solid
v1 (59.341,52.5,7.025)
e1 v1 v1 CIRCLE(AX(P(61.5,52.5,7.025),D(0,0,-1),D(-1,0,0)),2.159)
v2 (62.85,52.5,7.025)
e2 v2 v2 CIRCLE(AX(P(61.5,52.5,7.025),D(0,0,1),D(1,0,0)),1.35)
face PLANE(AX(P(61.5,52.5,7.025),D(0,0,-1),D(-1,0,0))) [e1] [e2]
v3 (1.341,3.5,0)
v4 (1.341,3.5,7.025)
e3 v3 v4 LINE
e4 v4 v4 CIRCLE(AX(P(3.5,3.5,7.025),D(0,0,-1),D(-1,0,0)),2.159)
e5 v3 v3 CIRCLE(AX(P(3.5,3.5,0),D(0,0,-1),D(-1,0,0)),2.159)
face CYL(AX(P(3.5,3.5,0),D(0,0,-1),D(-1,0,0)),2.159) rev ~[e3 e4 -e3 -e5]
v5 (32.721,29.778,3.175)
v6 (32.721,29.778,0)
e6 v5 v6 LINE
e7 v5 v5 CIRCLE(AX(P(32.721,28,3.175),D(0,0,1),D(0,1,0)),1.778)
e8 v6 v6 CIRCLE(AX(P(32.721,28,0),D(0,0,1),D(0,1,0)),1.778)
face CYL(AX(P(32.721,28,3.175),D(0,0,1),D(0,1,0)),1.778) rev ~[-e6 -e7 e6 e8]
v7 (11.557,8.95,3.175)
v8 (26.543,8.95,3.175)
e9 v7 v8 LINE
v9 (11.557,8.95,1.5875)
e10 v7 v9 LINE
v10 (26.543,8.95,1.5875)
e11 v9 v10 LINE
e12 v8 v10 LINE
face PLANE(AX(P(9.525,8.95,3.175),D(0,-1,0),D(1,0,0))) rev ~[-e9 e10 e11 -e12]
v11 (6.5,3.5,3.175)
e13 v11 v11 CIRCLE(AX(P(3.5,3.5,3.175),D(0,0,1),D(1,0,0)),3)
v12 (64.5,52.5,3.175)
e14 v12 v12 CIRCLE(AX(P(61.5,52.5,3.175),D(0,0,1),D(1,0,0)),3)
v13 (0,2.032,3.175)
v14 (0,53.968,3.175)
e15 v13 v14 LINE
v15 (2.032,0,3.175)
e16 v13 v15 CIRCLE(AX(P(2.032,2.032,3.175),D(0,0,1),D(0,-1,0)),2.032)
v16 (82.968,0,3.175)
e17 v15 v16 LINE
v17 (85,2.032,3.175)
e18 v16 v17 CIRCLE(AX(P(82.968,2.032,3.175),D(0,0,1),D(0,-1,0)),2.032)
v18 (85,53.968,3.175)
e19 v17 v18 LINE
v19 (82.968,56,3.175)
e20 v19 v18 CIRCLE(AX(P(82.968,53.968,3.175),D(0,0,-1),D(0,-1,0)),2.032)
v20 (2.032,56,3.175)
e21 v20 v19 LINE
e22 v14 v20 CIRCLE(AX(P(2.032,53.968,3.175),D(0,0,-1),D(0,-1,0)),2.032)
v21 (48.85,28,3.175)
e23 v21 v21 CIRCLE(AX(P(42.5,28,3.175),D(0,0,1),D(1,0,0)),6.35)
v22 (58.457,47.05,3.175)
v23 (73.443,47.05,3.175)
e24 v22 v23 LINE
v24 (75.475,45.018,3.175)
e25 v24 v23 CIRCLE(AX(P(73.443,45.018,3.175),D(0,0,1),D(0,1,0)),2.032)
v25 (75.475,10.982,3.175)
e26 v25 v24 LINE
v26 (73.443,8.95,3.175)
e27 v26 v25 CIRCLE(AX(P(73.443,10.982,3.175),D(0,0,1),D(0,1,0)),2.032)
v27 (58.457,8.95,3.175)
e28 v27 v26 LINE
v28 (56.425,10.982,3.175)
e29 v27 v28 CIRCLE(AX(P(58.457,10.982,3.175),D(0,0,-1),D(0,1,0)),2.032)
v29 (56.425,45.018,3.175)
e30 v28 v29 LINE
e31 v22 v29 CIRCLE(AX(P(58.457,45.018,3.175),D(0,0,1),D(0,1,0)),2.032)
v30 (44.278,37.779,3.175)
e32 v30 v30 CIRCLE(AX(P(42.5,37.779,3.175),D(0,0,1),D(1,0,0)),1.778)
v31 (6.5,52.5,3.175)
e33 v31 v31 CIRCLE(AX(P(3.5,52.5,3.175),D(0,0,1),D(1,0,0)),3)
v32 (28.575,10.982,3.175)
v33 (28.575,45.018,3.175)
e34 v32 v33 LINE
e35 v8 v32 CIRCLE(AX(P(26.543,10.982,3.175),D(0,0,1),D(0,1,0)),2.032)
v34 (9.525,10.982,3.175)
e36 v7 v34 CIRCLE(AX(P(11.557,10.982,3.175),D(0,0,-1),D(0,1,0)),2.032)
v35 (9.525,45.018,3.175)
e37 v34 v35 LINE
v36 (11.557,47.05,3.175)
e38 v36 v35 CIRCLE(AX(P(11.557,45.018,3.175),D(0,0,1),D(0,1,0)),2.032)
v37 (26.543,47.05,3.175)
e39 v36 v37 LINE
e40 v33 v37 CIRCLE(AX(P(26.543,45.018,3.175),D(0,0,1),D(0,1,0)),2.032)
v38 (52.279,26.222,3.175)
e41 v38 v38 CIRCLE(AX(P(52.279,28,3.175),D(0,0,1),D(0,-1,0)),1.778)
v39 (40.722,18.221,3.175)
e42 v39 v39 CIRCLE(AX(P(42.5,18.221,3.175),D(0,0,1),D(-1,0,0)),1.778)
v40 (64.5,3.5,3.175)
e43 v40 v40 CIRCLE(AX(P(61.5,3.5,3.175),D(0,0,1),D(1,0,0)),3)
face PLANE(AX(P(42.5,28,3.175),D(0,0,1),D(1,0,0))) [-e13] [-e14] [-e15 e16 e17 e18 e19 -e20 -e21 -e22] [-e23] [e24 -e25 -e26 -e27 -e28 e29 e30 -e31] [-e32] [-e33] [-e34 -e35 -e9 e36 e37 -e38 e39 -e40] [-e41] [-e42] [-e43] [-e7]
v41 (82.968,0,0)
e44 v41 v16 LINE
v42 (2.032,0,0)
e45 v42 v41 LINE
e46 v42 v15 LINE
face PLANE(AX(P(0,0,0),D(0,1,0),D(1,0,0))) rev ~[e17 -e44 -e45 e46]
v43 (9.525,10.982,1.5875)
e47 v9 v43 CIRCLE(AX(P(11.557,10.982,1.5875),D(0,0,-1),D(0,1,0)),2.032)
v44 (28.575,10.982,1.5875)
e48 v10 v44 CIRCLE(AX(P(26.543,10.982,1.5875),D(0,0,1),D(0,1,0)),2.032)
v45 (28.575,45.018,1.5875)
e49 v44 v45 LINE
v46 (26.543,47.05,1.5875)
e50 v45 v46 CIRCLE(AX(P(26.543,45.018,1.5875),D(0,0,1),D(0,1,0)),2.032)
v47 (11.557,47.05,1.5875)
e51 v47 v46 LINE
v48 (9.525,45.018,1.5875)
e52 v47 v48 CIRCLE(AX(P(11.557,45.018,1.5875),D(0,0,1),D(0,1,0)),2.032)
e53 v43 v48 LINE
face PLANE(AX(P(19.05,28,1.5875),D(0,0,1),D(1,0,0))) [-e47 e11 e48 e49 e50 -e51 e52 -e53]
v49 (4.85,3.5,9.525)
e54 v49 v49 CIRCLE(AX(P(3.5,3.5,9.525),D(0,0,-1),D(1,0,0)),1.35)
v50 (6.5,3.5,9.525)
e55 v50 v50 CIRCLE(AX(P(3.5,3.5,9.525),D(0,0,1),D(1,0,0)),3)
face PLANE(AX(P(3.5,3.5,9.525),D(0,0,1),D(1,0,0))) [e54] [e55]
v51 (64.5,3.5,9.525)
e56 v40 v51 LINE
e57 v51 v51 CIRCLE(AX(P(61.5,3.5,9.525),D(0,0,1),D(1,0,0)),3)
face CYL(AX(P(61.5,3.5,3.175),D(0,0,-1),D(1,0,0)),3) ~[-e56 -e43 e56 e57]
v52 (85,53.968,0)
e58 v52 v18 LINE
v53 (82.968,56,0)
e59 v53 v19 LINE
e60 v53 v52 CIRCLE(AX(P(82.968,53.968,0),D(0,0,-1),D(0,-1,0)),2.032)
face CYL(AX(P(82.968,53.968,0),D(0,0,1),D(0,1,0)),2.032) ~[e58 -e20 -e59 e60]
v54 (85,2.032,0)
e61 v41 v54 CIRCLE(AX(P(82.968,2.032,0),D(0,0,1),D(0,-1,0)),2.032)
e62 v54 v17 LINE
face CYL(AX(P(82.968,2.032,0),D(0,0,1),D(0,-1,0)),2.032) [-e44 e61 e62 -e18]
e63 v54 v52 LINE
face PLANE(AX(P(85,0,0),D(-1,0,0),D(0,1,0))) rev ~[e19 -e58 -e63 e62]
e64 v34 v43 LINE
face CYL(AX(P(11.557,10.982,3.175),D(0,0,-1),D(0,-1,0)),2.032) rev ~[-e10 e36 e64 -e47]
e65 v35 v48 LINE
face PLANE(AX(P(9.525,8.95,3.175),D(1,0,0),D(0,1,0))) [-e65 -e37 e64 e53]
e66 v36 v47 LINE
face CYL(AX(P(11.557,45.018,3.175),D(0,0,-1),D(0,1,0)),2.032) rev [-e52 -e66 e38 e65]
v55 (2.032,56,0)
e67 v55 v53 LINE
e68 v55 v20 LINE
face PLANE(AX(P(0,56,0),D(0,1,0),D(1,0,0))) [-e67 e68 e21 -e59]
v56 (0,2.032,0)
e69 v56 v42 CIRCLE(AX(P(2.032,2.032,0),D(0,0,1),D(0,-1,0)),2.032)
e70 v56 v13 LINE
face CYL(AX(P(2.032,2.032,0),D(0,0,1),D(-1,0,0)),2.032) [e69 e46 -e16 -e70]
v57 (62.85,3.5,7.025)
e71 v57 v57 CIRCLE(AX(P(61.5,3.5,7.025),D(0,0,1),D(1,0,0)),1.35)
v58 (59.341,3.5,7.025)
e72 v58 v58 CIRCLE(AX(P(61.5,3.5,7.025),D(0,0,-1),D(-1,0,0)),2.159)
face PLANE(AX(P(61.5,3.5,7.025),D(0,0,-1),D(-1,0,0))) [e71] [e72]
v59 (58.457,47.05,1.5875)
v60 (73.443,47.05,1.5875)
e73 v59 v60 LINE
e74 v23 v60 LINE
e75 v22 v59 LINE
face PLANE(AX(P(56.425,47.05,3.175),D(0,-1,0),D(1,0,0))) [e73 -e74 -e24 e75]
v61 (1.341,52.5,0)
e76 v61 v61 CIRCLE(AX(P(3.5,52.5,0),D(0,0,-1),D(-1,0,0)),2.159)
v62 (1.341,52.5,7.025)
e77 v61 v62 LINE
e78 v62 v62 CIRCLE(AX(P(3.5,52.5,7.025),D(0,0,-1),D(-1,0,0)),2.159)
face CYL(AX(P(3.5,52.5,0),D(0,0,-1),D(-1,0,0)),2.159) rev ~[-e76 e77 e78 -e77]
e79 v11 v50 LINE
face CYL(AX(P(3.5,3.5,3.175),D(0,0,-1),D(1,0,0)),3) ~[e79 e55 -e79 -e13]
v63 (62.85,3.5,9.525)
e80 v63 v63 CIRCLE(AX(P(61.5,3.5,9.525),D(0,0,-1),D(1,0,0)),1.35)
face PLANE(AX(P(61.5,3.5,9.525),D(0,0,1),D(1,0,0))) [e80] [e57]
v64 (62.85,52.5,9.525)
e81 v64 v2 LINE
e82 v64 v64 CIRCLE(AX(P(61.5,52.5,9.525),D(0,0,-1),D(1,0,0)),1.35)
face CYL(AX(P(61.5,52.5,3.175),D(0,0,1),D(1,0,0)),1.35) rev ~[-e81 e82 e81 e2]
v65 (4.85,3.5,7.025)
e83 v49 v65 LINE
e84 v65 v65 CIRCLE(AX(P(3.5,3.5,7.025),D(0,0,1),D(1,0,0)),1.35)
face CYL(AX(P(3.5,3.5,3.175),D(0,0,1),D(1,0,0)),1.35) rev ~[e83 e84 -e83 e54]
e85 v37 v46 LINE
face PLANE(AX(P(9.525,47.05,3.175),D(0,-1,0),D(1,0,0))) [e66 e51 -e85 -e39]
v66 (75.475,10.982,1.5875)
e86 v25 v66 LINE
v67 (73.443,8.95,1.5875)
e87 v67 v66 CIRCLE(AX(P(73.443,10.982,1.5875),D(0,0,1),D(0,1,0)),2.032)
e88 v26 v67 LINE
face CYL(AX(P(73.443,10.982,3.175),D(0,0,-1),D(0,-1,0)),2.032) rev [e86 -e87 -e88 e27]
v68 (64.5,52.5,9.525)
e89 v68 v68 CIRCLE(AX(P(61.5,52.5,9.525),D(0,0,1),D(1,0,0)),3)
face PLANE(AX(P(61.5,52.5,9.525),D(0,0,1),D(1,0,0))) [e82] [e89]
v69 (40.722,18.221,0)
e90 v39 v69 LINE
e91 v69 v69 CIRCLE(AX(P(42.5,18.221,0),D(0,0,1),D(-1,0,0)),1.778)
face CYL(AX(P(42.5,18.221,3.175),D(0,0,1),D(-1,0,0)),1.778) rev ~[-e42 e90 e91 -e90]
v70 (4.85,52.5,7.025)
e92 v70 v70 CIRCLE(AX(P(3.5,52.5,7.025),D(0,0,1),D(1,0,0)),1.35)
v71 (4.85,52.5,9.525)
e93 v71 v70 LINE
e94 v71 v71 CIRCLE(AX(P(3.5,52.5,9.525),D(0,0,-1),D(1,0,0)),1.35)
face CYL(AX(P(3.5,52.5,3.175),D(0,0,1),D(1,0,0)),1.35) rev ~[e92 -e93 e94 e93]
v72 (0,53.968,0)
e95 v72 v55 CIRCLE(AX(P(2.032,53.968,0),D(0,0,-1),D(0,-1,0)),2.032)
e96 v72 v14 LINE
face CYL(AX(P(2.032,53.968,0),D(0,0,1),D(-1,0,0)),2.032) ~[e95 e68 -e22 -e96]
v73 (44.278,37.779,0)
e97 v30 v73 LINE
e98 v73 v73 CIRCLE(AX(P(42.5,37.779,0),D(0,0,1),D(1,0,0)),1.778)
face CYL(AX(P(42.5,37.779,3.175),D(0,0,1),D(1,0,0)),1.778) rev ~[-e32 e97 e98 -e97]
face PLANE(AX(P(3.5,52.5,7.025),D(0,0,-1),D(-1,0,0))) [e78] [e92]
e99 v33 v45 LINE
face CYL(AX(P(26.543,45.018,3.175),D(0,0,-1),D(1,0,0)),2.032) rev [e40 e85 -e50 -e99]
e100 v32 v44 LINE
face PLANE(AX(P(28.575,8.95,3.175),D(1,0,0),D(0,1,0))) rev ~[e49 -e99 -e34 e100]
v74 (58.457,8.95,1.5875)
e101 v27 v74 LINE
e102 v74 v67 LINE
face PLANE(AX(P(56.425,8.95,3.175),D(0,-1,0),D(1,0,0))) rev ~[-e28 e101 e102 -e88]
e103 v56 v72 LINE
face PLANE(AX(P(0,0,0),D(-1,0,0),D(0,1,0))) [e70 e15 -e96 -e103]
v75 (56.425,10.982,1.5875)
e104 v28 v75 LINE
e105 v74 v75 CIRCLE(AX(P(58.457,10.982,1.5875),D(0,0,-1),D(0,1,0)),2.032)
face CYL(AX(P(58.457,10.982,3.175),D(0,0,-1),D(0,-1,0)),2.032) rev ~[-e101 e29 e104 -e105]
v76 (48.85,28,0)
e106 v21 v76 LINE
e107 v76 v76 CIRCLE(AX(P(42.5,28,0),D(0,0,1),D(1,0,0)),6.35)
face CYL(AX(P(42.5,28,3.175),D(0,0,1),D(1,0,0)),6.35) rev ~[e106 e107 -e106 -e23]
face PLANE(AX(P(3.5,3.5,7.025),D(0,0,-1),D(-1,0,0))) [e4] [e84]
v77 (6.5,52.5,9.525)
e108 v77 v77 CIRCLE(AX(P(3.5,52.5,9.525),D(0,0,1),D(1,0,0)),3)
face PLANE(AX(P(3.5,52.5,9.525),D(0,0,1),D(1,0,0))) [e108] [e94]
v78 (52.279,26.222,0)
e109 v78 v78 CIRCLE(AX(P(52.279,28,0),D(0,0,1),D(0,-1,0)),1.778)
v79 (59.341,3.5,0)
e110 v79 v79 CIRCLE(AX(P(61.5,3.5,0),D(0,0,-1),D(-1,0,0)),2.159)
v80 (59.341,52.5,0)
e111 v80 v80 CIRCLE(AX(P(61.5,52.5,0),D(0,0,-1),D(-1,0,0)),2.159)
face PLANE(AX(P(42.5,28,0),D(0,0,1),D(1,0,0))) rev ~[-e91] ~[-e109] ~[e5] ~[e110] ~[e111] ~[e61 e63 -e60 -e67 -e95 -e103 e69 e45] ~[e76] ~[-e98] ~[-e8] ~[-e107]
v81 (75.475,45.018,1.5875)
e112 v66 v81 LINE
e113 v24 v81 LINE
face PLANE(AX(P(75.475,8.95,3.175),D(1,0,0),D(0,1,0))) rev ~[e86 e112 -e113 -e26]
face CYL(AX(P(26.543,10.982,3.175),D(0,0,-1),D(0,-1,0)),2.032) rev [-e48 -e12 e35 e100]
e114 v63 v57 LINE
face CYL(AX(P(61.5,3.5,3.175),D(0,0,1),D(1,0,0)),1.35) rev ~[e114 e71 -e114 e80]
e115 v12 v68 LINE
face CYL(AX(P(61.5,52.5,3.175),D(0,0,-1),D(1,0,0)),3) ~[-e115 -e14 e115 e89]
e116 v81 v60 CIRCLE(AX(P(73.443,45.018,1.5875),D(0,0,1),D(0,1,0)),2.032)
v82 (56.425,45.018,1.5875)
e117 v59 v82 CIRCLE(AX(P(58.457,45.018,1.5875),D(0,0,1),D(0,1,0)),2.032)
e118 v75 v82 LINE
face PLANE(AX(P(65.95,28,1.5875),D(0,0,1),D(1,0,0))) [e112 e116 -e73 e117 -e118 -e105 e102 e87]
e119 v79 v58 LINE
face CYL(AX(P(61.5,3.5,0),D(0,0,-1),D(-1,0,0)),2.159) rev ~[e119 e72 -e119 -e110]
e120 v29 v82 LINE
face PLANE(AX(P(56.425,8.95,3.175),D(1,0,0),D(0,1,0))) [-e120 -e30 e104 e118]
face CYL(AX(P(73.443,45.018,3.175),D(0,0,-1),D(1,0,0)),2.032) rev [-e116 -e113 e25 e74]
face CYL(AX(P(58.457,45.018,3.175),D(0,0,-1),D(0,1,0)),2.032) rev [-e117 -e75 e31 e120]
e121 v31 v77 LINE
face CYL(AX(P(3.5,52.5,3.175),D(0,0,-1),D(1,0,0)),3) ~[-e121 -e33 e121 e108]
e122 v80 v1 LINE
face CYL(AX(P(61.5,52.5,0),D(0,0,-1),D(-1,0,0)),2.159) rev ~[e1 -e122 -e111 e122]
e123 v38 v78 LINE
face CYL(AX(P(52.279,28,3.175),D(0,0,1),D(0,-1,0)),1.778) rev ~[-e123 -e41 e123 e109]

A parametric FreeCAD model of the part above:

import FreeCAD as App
import Part
import Sketcher

V = App.Vector
Q = App.Units.Quantity


def edges_at(feature, points):
    """Names of the edges that pass closest to the given points."""
    edges = feature.Shape.Edges
    near = lambda p: min(range(len(edges)), key=lambda i: edges[i].distToShape(Part.Vertex(*p))[0])
    return sorted({f"Edge{near(p) + 1}" for p in points})


def add_polygon(sketch, points):
    """Adds a closed chain of lines whose ends are joined by coincident constraints."""
    first, n = sketch.GeometryCount, len(points)
    for a, b in zip(points, points[1:] + points[:1]):
        sketch.addGeometry(Part.LineSegment(App.Vector(*a, 0), App.Vector(*b, 0)), False)
    for i in range(n):
        sketch.addConstraint(Sketcher.Constraint("Coincident", first + i, 2, first + (i + 1) % n, 1))

doc = App.newDocument("Part")
body = doc.addObject("PartDesign::Body", "Body")

sketch1 = doc.addObject("Sketcher::SketchObject", "Sketch")
body.addObject(sketch1)
sketch1.AttachmentSupport = (doc.XY_Plane, [""])
sketch1.MapMode = "FlatFace"
add_polygon(sketch1, [(0, 56), (0, 0), (85, 0), (85, 56)])
sketch1.addConstraint(Sketcher.Constraint("Vertical", 0))
sketch1.addConstraint(Sketcher.Constraint("Horizontal", 1))
sketch1.addConstraint(Sketcher.Constraint("Vertical", 2))
sketch1.addConstraint(Sketcher.Constraint("Horizontal", 3))
sketch1.addConstraint(Sketcher.Constraint("Coincident", 0, 2, -1, 1))
sketch1.addConstraint(Sketcher.Constraint("DistanceX", 1, 1, 1, 2, 85.0))
sketch1.addConstraint(Sketcher.Constraint("DistanceY", 0, 2, 0, 1, 56.0))
pad1 = doc.addObject("PartDesign::Pad", "Pad")
body.addObject(pad1)
pad1.Profile = sketch1
pad1.Length = Q("0.125 in")

sketch2 = doc.addObject("Sketcher::SketchObject", "Sketch001")
body.addObject(sketch2)
sketch2.AttachmentSupport = (doc.XY_Plane, [""])
sketch2.MapMode = "FlatFace"
sketch2.AttachmentOffset = App.Placement(V(0, 0, 0.125 * 25.4), App.Rotation())
sketch2.addGeometry(Part.Circle(V(42, 28, 0), V(0, 0, 1), 6), False)
sketch2.addConstraint(Sketcher.Constraint("Diameter", 0, Q("0.5 in")))
sketch2.addConstraint(Sketcher.Constraint("DistanceX", -1, 1, 0, 3, 42.5))
sketch2.addConstraint(Sketcher.Constraint("DistanceY", -1, 1, 0, 3, 28.0))
pocket1 = doc.addObject("PartDesign::Pocket", "Pocket")
body.addObject(pocket1)
pocket1.Profile = sketch2
pocket1.Length = Q("0.125 in")

sketch3 = doc.addObject("Sketcher::SketchObject", "Sketch002")
body.addObject(sketch3)
sketch3.AttachmentSupport = (doc.XY_Plane, [""])
sketch3.MapMode = "FlatFace"
sketch3.AttachmentOffset = App.Placement(V(0, 0, 0.125 * 25.4), App.Rotation())
sketch3.addGeometry(Part.Circle(V(42.5, 37.8, 0), V(0, 0, 1), 1.8), False)
sketch3.addConstraint(Sketcher.Constraint("Diameter", 0, Q("0.14 in")))
sketch3.addConstraint(Sketcher.Constraint("DistanceX", -1, 1, 0, 3, 42.5))
sketch3.addConstraint(Sketcher.Constraint("DistanceY", -1, 1, 0, 3, 37.779))
pocket2 = doc.addObject("PartDesign::Pocket", "Pocket001")
body.addObject(pocket2)
pocket2.Profile = sketch3
pocket2.Length = Q("0.125 in")
doc.recompute()

datumline = doc.addObject("PartDesign::Line", "DatumLine")
body.addObject(datumline)
datumline.Placement = App.Placement(V(42.5, 28, 0), App.Rotation(V(0, 0, 1), V(0, 0, 1)))
polarpattern = doc.addObject("PartDesign::PolarPattern", "PolarPattern")
body.addObject(polarpattern)
polarpattern.Originals = [pocket2]
polarpattern.Axis = (datumline, [""])
polarpattern.Angle = 360
polarpattern.Occurrences = 4
body.Tip = polarpattern

sketch4 = doc.addObject("Sketcher::SketchObject", "Sketch003")
body.addObject(sketch4)
sketch4.AttachmentSupport = (doc.XY_Plane, [""])
sketch4.MapMode = "FlatFace"
sketch4.AttachmentOffset = App.Placement(V(0, 0, 0.125 * 25.4), App.Rotation())
sketch4.addGeometry(Part.Circle(V(3.5, 52.5, 0), V(0, 0, 1), 3), False)
sketch4.addGeometry(Part.Circle(V(3.5, 3.5, 0), V(0, 0, 1), 3), False)
sketch4.addGeometry(Part.Circle(V(61.5, 52.5, 0), V(0, 0, 1), 3), False)
sketch4.addGeometry(Part.Circle(V(61.5, 3.5, 0), V(0, 0, 1), 3), False)
sketch4.addConstraint(Sketcher.Constraint("Equal", 0, 1))
sketch4.addConstraint(Sketcher.Constraint("Equal", 1, 2))
sketch4.addConstraint(Sketcher.Constraint("Equal", 2, 3))
sketch4.addConstraint(Sketcher.Constraint("Horizontal", 0, 3, 2, 3))
sketch4.addConstraint(Sketcher.Constraint("Horizontal", 1, 3, 3, 3))
sketch4.addConstraint(Sketcher.Constraint("Vertical", 0, 3, 1, 3))
sketch4.addConstraint(Sketcher.Constraint("Vertical", 2, 3, 3, 3))
sketch4.addConstraint(Sketcher.Constraint("Diameter", 0, 6.0))
sketch4.addConstraint(Sketcher.Constraint("DistanceX", -1, 1, 0, 3, 3.5))
sketch4.addConstraint(Sketcher.Constraint("DistanceY", -1, 1, 0, 3, 52.5))
sketch4.addConstraint(Sketcher.Constraint("DistanceY", -1, 1, 1, 3, 3.5))
sketch4.addConstraint(Sketcher.Constraint("DistanceX", -1, 1, 2, 3, 61.5))
pad2 = doc.addObject("PartDesign::Pad", "Pad001")
body.addObject(pad2)
pad2.Profile = sketch4
pad2.Length = Q("0.25 in")

sketch5 = doc.addObject("Sketcher::SketchObject", "Sketch004")
body.addObject(sketch5)
sketch5.AttachmentSupport = (doc.XY_Plane, [""])
sketch5.MapMode = "FlatFace"
sketch5.AttachmentOffset = App.Placement(V(0, 0, 0.125 * 25.4), App.Rotation())
sketch5.addGeometry(Part.Circle(V(3.5, 3.5, 0), V(0, 0, 1), 1.3), False)
sketch5.addGeometry(Part.Circle(V(61.5, 3.5, 0), V(0, 0, 1), 1.3), False)
sketch5.addGeometry(Part.Circle(V(61.5, 52.5, 0), V(0, 0, 1), 1.3), False)
sketch5.addGeometry(Part.Circle(V(3.5, 52.5, 0), V(0, 0, 1), 1.3), False)
sketch5.addConstraint(Sketcher.Constraint("Equal", 0, 1))
sketch5.addConstraint(Sketcher.Constraint("Equal", 1, 2))
sketch5.addConstraint(Sketcher.Constraint("Equal", 2, 3))
sketch5.addConstraint(Sketcher.Constraint("Horizontal", 0, 3, 1, 3))
sketch5.addConstraint(Sketcher.Constraint("Horizontal", 2, 3, 3, 3))
sketch5.addConstraint(Sketcher.Constraint("Vertical", 1, 3, 2, 3))
sketch5.addConstraint(Sketcher.Constraint("Vertical", 0, 3, 3, 3))
sketch5.addConstraint(Sketcher.Constraint("Diameter", 0, 2.7))
sketch5.addConstraint(Sketcher.Constraint("DistanceX", -1, 1, 0, 3, 3.5))
sketch5.addConstraint(Sketcher.Constraint("DistanceY", -1, 1, 0, 3, 3.5))
sketch5.addConstraint(Sketcher.Constraint("DistanceX", -1, 1, 1, 3, 61.5))
sketch5.addConstraint(Sketcher.Constraint("DistanceY", -1, 1, 2, 3, 52.5))
pocket3 = doc.addObject("PartDesign::Pocket", "Pocket002")
body.addObject(pocket3)
pocket3.Profile = sketch5
pocket3.Type = "ThroughAll"
pocket3.Midplane = True

sketch6 = doc.addObject("Sketcher::SketchObject", "Sketch005")
body.addObject(sketch6)
sketch6.AttachmentSupport = (doc.XY_Plane, [""])
sketch6.MapMode = "FlatFace"
sketch6.addGeometry(Part.Circle(V(61.5, 52.5, 0), V(0, 0, 1), 2.2), False)
sketch6.addGeometry(Part.Circle(V(3.5, 52.5, 0), V(0, 0, 1), 2.2), False)
sketch6.addGeometry(Part.Circle(V(3.5, 3.5, 0), V(0, 0, 1), 2.2), False)
sketch6.addGeometry(Part.Circle(V(61.5, 3.5, 0), V(0, 0, 1), 2.2), False)
sketch6.addConstraint(Sketcher.Constraint("Equal", 0, 1))
sketch6.addConstraint(Sketcher.Constraint("Equal", 1, 2))
sketch6.addConstraint(Sketcher.Constraint("Equal", 2, 3))
sketch6.addConstraint(Sketcher.Constraint("Horizontal", 0, 3, 1, 3))
sketch6.addConstraint(Sketcher.Constraint("Horizontal", 2, 3, 3, 3))
sketch6.addConstraint(Sketcher.Constraint("Vertical", 1, 3, 2, 3))
sketch6.addConstraint(Sketcher.Constraint("Vertical", 0, 3, 3, 3))
sketch6.addConstraint(Sketcher.Constraint("Diameter", 0, Q("0.17 in")))
sketch6.addConstraint(Sketcher.Constraint("DistanceX", -1, 1, 0, 3, 61.5))
sketch6.addConstraint(Sketcher.Constraint("DistanceY", -1, 1, 0, 3, 52.5))
sketch6.addConstraint(Sketcher.Constraint("DistanceX", -1, 1, 1, 3, 3.5))
sketch6.addConstraint(Sketcher.Constraint("DistanceY", -1, 1, 2, 3, 3.5))
pocket4 = doc.addObject("PartDesign::Pocket", "Pocket003")
body.addObject(pocket4)
pocket4.Profile = sketch6
pocket4.Length = 7.025
pocket4.Reversed = True

sketch7 = doc.addObject("Sketcher::SketchObject", "Sketch006")
body.addObject(sketch7)
sketch7.AttachmentSupport = (doc.XY_Plane, [""])
sketch7.MapMode = "FlatFace"
sketch7.AttachmentOffset = App.Placement(V(0, 0, 0.125 * 25.4), App.Rotation())
add_polygon(sketch7, [(10, 47), (10, 9), (29, 9), (29, 47)])
add_polygon(sketch7, [(56, 47), (56, 9), (75, 9), (75, 47)])
sketch7.addConstraint(Sketcher.Constraint("Vertical", 0))
sketch7.addConstraint(Sketcher.Constraint("Horizontal", 1))
sketch7.addConstraint(Sketcher.Constraint("Vertical", 2))
sketch7.addConstraint(Sketcher.Constraint("Horizontal", 3))
sketch7.addConstraint(Sketcher.Constraint("Vertical", 4))
sketch7.addConstraint(Sketcher.Constraint("Horizontal", 5))
sketch7.addConstraint(Sketcher.Constraint("Vertical", 6))
sketch7.addConstraint(Sketcher.Constraint("Horizontal", 7))
sketch7.addConstraint(Sketcher.Constraint("Horizontal", 1, 2, 4, 2))
sketch7.addConstraint(Sketcher.Constraint("Horizontal", 3, 2, 6, 2))
sketch7.addConstraint(Sketcher.Constraint("Equal", 3, 5))
sketch7.addConstraint(Sketcher.Constraint("DistanceY", 0, 2, 0, 1, Q("1.5 in")))
sketch7.addConstraint(Sketcher.Constraint("DistanceX", 1, 1, 1, 2, Q("0.75 in")))
sketch7.addConstraint(Sketcher.Constraint("DistanceX", -1, 1, 0, 2, Q("0.375 in")))
sketch7.addConstraint(Sketcher.Constraint("DistanceY", -1, 1, 0, 2, 8.95))
sketch7.addConstraint(Sketcher.Constraint("DistanceX", -1, 1, 4, 2, 56.425))
pocket5 = doc.addObject("PartDesign::Pocket", "Pocket004")
body.addObject(pocket5)
pocket5.Profile = sketch7
pocket5.Length = Q("0.0625 in")
doc.recompute()

fillet = doc.addObject("PartDesign::Fillet", "Fillet")
body.addObject(fillet)
fillet.Base = (pocket5, edges_at(pocket5, [
    (9.525, 8.95, 2.381),
    (9.525, 47.05, 2.381),
    (28.575, 47.05, 2.381),
    (28.575, 8.95, 2.381),
    (56.425, 8.95, 2.381),
    (56.425, 47.05, 2.381),
    (75.475, 47.05, 2.381),
    (75.475, 8.95, 2.381),
    (0, 56, 1.587),
    (85, 56, 1.587),
    (85, 0, 1.587),
    (0, 0, 1.587),
]))
fillet.Radius = Q("0.08 in")

doc.recompute()
